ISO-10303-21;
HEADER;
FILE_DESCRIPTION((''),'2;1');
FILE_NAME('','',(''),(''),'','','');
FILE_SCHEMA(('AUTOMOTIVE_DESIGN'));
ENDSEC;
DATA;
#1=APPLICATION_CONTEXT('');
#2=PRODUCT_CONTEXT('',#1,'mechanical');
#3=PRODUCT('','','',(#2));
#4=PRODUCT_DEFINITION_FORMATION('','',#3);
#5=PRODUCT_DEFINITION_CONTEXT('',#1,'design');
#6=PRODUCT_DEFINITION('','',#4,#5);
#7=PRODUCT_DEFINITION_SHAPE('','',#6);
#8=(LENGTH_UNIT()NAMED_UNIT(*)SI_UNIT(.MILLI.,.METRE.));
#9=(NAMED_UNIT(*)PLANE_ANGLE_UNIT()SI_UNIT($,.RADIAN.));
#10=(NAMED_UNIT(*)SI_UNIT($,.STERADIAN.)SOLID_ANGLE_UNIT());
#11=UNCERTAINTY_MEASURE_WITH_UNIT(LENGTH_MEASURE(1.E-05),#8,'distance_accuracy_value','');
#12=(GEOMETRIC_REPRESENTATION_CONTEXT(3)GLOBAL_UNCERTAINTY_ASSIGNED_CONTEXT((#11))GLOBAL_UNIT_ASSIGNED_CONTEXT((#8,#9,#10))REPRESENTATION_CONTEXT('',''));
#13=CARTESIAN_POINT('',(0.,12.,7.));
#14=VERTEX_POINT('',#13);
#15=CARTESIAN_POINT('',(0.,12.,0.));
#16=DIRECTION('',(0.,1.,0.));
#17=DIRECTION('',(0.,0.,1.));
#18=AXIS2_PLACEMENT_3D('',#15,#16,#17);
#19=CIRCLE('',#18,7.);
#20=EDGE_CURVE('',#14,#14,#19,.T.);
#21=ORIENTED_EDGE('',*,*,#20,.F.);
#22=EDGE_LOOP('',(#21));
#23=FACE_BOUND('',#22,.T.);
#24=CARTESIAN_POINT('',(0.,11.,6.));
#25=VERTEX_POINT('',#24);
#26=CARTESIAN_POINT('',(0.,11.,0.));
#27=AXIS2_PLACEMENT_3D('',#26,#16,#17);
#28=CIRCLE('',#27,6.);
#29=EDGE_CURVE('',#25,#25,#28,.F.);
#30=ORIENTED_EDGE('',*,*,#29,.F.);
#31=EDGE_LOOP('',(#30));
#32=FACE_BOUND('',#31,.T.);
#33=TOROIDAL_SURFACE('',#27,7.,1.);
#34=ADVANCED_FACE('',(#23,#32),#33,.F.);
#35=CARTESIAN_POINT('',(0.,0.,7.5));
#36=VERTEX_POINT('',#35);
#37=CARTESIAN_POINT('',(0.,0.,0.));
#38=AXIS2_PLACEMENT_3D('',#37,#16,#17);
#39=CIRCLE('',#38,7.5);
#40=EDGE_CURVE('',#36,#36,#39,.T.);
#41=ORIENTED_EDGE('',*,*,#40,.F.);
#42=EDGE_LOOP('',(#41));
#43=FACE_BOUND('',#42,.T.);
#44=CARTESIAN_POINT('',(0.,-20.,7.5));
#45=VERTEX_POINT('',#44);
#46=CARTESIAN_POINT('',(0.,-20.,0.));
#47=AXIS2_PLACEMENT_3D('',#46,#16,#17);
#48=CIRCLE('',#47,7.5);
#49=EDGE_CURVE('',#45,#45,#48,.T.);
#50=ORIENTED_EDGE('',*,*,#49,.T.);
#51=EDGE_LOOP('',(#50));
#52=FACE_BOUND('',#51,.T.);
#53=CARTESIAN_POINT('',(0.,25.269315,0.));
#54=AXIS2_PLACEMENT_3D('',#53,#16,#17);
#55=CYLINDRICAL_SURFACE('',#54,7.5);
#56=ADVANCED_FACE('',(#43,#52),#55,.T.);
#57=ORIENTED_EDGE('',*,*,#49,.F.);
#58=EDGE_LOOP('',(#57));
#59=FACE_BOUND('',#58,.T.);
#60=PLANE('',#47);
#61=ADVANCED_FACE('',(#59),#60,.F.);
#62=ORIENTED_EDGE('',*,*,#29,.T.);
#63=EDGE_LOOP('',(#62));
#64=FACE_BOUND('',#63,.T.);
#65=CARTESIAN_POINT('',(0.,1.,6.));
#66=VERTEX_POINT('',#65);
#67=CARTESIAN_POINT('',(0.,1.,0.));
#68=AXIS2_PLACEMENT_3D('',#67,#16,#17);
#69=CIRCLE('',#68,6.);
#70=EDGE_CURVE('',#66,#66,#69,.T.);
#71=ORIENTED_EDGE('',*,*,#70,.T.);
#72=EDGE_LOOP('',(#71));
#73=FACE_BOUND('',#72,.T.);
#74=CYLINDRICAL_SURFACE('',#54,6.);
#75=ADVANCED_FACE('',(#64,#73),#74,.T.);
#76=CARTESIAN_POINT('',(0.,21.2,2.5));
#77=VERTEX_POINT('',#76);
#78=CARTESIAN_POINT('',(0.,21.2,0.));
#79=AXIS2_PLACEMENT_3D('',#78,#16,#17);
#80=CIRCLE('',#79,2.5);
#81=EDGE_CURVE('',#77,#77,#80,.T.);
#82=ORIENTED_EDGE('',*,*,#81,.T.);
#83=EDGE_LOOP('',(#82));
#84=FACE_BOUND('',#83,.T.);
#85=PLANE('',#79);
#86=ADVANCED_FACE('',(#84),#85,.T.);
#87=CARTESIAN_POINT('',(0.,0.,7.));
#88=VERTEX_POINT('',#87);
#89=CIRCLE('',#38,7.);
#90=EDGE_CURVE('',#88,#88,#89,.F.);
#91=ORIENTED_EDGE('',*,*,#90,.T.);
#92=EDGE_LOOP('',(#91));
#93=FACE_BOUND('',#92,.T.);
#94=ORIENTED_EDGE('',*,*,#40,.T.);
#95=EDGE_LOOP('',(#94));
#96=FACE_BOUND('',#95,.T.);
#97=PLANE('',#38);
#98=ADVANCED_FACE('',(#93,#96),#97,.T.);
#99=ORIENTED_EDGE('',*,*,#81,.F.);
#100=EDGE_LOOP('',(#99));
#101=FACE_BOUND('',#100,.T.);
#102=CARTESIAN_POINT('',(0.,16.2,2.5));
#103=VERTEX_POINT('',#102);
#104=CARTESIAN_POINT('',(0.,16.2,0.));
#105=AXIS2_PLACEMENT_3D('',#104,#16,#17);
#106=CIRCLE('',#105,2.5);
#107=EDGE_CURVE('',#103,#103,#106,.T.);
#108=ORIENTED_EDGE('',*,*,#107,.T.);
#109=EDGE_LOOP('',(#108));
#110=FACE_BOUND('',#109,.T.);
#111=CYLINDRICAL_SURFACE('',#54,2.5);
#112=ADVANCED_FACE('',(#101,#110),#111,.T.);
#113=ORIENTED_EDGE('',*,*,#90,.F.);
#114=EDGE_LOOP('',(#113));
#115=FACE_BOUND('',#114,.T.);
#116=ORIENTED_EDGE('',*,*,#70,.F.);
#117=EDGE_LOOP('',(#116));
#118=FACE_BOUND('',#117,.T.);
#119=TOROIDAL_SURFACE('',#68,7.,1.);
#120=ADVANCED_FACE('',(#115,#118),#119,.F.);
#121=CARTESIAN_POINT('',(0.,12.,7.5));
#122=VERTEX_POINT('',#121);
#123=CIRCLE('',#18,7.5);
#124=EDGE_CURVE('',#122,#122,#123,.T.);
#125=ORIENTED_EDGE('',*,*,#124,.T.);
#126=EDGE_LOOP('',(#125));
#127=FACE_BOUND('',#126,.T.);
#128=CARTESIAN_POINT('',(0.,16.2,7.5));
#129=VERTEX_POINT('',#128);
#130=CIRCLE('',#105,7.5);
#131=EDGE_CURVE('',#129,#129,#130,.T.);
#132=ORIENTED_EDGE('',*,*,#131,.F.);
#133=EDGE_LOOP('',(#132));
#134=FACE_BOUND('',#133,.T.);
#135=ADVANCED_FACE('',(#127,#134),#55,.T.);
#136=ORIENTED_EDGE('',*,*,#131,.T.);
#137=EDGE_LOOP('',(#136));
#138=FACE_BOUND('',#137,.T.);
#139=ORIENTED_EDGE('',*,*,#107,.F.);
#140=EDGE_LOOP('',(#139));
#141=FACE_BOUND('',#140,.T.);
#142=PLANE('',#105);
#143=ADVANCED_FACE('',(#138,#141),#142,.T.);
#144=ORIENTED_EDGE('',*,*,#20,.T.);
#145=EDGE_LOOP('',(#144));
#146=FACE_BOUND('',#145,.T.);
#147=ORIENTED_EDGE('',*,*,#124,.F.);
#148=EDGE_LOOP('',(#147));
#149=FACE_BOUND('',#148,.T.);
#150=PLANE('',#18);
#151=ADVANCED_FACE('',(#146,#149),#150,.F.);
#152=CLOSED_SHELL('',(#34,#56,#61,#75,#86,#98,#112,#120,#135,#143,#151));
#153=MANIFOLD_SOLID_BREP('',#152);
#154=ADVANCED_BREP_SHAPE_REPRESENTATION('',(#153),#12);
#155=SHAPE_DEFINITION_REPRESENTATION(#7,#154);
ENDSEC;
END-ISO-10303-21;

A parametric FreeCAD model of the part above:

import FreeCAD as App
import Part
import Sketcher

V = App.Vector
Q = App.Units.Quantity


def edges_at(feature, points):
    """Names of the edges that pass closest to the given points."""
    edges = feature.Shape.Edges
    near = lambda p: min(range(len(edges)), key=lambda i: edges[i].distToShape(Part.Vertex(*p))[0])
    return sorted({f"Edge{near(p) + 1}" for p in points})

doc = App.newDocument("Part")
body = doc.addObject("PartDesign::Body", "Body")

# Sketch on XY plane
sketch1 = body.newObject("Sketcher::SketchObject", "Sketch")
sketch1.AttachmentSupport = (doc.getObject("XY_Plane"), [""])
sketch1.MapMode = "FlatFace"
sketch1.addGeometry(Part.LineSegment(V(-7.5, 0, 0), V(-7.5, -20, 0)), False)
sketch1.addGeometry(Part.LineSegment(V(-7.5, -20, 0), V(0, -20, 0)), False)
sketch1.addGeometry(Part.LineSegment(V(0, -20, 0), V(0, 21.2, 0)), False)
sketch1.addGeometry(Part.LineSegment(V(0, 21.2, 0), V(-2.5, 21.2, 0)), False)
sketch1.addGeometry(Part.LineSegment(V(-2.5, 21.2, 0), V(-2.5, 16.2, 0)), False)
sketch1.addGeometry(Part.LineSegment(V(-2.5, 16.2, 0), V(-7.5, 16.2, 0)), False)
sketch1.addGeometry(Part.LineSegment(V(-7.5, 16.2, 0), V(-7.5, 12, 0)), False)
sketch1.addGeometry(Part.LineSegment(V(-7.5, 12, 0), V(-6, 12, 0)), False)
sketch1.addGeometry(Part.LineSegment(V(-6, 12, 0), V(-6, 0, 0)), False)
sketch1.addGeometry(Part.LineSegment(V(-6, 0, 0), V(-7.5, 0, 0)), False)
sketch1.addConstraint(Sketcher.Constraint("Coincident", 0, 2, 1, 1))
sketch1.addConstraint(Sketcher.Constraint("Coincident", 1, 2, 2, 1))
sketch1.addConstraint(Sketcher.Constraint("Coincident", 2, 2, 3, 1))
sketch1.addConstraint(Sketcher.Constraint("Coincident", 3, 2, 4, 1))
sketch1.addConstraint(Sketcher.Constraint("Coincident", 4, 2, 5, 1))
sketch1.addConstraint(Sketcher.Constraint("Coincident", 5, 2, 6, 1))
sketch1.addConstraint(Sketcher.Constraint("Coincident", 6, 2, 7, 1))
sketch1.addConstraint(Sketcher.Constraint("Coincident", 7, 2, 8, 1))
sketch1.addConstraint(Sketcher.Constraint("Coincident", 8, 2, 9, 1))
sketch1.addConstraint(Sketcher.Constraint("Coincident", 9, 2, 0, 1))
sketch1.addConstraint(Sketcher.Constraint("Vertical", 0))
sketch1.addConstraint(Sketcher.Constraint("Horizontal", 1))
sketch1.addConstraint(Sketcher.Constraint("Vertical", 2))
sketch1.addConstraint(Sketcher.Constraint("Horizontal", 3))
sketch1.addConstraint(Sketcher.Constraint("Vertical", 4))
sketch1.addConstraint(Sketcher.Constraint("Horizontal", 5))
sketch1.addConstraint(Sketcher.Constraint("Vertical", 6))
sketch1.addConstraint(Sketcher.Constraint("Horizontal", 7))
sketch1.addConstraint(Sketcher.Constraint("Vertical", 8))
sketch1.addConstraint(Sketcher.Constraint("Horizontal", 9))
sketch1.addConstraint(Sketcher.Constraint("PointOnObject", 1, 2, -2))
sketch1.addConstraint(Sketcher.Constraint("PointOnObject", 8, 2, -1))
sketch1.addConstraint(Sketcher.Constraint("Vertical", 0, 2, 5, 2))
sketch1.addConstraint(Sketcher.Constraint("Equal", 5, 4))
sketch1.addConstraint(Sketcher.Constraint("DistanceX", 5, 2, 5, 1, Q("5 mm")))
sketch1.addConstraint(Sketcher.Constraint("DistanceY", 0, 2, 0, 1, Q("20 mm")))
sketch1.addConstraint(Sketcher.Constraint("DistanceY", 8, 2, 8, 1, Q("12 mm")))
sketch1.addConstraint(Sketcher.Constraint("DistanceX", 1, 1, 1, 2, Q("7.5 mm")))
sketch1.addConstraint(Sketcher.Constraint("DistanceX", 7, 1, 7, 2, Q("1.5 mm")))
sketch1.addConstraint(Sketcher.Constraint("DistanceY", 2, 1, 2, 2, Q("41.2 mm")))
revolution = body.newObject("PartDesign::Revolution", "Revolution")
revolution.Profile = sketch1
revolution.ReferenceAxis = (sketch1, ["V_Axis"])
revolution.Angle = 360
doc.recompute()

fillet = body.newObject("PartDesign::Fillet", "Fillet")
fillet.Base = (revolution, edges_at(revolution, [(6, 0, 0), (6, 12, 0)]))
fillet.Radius = 1

doc.recompute()
